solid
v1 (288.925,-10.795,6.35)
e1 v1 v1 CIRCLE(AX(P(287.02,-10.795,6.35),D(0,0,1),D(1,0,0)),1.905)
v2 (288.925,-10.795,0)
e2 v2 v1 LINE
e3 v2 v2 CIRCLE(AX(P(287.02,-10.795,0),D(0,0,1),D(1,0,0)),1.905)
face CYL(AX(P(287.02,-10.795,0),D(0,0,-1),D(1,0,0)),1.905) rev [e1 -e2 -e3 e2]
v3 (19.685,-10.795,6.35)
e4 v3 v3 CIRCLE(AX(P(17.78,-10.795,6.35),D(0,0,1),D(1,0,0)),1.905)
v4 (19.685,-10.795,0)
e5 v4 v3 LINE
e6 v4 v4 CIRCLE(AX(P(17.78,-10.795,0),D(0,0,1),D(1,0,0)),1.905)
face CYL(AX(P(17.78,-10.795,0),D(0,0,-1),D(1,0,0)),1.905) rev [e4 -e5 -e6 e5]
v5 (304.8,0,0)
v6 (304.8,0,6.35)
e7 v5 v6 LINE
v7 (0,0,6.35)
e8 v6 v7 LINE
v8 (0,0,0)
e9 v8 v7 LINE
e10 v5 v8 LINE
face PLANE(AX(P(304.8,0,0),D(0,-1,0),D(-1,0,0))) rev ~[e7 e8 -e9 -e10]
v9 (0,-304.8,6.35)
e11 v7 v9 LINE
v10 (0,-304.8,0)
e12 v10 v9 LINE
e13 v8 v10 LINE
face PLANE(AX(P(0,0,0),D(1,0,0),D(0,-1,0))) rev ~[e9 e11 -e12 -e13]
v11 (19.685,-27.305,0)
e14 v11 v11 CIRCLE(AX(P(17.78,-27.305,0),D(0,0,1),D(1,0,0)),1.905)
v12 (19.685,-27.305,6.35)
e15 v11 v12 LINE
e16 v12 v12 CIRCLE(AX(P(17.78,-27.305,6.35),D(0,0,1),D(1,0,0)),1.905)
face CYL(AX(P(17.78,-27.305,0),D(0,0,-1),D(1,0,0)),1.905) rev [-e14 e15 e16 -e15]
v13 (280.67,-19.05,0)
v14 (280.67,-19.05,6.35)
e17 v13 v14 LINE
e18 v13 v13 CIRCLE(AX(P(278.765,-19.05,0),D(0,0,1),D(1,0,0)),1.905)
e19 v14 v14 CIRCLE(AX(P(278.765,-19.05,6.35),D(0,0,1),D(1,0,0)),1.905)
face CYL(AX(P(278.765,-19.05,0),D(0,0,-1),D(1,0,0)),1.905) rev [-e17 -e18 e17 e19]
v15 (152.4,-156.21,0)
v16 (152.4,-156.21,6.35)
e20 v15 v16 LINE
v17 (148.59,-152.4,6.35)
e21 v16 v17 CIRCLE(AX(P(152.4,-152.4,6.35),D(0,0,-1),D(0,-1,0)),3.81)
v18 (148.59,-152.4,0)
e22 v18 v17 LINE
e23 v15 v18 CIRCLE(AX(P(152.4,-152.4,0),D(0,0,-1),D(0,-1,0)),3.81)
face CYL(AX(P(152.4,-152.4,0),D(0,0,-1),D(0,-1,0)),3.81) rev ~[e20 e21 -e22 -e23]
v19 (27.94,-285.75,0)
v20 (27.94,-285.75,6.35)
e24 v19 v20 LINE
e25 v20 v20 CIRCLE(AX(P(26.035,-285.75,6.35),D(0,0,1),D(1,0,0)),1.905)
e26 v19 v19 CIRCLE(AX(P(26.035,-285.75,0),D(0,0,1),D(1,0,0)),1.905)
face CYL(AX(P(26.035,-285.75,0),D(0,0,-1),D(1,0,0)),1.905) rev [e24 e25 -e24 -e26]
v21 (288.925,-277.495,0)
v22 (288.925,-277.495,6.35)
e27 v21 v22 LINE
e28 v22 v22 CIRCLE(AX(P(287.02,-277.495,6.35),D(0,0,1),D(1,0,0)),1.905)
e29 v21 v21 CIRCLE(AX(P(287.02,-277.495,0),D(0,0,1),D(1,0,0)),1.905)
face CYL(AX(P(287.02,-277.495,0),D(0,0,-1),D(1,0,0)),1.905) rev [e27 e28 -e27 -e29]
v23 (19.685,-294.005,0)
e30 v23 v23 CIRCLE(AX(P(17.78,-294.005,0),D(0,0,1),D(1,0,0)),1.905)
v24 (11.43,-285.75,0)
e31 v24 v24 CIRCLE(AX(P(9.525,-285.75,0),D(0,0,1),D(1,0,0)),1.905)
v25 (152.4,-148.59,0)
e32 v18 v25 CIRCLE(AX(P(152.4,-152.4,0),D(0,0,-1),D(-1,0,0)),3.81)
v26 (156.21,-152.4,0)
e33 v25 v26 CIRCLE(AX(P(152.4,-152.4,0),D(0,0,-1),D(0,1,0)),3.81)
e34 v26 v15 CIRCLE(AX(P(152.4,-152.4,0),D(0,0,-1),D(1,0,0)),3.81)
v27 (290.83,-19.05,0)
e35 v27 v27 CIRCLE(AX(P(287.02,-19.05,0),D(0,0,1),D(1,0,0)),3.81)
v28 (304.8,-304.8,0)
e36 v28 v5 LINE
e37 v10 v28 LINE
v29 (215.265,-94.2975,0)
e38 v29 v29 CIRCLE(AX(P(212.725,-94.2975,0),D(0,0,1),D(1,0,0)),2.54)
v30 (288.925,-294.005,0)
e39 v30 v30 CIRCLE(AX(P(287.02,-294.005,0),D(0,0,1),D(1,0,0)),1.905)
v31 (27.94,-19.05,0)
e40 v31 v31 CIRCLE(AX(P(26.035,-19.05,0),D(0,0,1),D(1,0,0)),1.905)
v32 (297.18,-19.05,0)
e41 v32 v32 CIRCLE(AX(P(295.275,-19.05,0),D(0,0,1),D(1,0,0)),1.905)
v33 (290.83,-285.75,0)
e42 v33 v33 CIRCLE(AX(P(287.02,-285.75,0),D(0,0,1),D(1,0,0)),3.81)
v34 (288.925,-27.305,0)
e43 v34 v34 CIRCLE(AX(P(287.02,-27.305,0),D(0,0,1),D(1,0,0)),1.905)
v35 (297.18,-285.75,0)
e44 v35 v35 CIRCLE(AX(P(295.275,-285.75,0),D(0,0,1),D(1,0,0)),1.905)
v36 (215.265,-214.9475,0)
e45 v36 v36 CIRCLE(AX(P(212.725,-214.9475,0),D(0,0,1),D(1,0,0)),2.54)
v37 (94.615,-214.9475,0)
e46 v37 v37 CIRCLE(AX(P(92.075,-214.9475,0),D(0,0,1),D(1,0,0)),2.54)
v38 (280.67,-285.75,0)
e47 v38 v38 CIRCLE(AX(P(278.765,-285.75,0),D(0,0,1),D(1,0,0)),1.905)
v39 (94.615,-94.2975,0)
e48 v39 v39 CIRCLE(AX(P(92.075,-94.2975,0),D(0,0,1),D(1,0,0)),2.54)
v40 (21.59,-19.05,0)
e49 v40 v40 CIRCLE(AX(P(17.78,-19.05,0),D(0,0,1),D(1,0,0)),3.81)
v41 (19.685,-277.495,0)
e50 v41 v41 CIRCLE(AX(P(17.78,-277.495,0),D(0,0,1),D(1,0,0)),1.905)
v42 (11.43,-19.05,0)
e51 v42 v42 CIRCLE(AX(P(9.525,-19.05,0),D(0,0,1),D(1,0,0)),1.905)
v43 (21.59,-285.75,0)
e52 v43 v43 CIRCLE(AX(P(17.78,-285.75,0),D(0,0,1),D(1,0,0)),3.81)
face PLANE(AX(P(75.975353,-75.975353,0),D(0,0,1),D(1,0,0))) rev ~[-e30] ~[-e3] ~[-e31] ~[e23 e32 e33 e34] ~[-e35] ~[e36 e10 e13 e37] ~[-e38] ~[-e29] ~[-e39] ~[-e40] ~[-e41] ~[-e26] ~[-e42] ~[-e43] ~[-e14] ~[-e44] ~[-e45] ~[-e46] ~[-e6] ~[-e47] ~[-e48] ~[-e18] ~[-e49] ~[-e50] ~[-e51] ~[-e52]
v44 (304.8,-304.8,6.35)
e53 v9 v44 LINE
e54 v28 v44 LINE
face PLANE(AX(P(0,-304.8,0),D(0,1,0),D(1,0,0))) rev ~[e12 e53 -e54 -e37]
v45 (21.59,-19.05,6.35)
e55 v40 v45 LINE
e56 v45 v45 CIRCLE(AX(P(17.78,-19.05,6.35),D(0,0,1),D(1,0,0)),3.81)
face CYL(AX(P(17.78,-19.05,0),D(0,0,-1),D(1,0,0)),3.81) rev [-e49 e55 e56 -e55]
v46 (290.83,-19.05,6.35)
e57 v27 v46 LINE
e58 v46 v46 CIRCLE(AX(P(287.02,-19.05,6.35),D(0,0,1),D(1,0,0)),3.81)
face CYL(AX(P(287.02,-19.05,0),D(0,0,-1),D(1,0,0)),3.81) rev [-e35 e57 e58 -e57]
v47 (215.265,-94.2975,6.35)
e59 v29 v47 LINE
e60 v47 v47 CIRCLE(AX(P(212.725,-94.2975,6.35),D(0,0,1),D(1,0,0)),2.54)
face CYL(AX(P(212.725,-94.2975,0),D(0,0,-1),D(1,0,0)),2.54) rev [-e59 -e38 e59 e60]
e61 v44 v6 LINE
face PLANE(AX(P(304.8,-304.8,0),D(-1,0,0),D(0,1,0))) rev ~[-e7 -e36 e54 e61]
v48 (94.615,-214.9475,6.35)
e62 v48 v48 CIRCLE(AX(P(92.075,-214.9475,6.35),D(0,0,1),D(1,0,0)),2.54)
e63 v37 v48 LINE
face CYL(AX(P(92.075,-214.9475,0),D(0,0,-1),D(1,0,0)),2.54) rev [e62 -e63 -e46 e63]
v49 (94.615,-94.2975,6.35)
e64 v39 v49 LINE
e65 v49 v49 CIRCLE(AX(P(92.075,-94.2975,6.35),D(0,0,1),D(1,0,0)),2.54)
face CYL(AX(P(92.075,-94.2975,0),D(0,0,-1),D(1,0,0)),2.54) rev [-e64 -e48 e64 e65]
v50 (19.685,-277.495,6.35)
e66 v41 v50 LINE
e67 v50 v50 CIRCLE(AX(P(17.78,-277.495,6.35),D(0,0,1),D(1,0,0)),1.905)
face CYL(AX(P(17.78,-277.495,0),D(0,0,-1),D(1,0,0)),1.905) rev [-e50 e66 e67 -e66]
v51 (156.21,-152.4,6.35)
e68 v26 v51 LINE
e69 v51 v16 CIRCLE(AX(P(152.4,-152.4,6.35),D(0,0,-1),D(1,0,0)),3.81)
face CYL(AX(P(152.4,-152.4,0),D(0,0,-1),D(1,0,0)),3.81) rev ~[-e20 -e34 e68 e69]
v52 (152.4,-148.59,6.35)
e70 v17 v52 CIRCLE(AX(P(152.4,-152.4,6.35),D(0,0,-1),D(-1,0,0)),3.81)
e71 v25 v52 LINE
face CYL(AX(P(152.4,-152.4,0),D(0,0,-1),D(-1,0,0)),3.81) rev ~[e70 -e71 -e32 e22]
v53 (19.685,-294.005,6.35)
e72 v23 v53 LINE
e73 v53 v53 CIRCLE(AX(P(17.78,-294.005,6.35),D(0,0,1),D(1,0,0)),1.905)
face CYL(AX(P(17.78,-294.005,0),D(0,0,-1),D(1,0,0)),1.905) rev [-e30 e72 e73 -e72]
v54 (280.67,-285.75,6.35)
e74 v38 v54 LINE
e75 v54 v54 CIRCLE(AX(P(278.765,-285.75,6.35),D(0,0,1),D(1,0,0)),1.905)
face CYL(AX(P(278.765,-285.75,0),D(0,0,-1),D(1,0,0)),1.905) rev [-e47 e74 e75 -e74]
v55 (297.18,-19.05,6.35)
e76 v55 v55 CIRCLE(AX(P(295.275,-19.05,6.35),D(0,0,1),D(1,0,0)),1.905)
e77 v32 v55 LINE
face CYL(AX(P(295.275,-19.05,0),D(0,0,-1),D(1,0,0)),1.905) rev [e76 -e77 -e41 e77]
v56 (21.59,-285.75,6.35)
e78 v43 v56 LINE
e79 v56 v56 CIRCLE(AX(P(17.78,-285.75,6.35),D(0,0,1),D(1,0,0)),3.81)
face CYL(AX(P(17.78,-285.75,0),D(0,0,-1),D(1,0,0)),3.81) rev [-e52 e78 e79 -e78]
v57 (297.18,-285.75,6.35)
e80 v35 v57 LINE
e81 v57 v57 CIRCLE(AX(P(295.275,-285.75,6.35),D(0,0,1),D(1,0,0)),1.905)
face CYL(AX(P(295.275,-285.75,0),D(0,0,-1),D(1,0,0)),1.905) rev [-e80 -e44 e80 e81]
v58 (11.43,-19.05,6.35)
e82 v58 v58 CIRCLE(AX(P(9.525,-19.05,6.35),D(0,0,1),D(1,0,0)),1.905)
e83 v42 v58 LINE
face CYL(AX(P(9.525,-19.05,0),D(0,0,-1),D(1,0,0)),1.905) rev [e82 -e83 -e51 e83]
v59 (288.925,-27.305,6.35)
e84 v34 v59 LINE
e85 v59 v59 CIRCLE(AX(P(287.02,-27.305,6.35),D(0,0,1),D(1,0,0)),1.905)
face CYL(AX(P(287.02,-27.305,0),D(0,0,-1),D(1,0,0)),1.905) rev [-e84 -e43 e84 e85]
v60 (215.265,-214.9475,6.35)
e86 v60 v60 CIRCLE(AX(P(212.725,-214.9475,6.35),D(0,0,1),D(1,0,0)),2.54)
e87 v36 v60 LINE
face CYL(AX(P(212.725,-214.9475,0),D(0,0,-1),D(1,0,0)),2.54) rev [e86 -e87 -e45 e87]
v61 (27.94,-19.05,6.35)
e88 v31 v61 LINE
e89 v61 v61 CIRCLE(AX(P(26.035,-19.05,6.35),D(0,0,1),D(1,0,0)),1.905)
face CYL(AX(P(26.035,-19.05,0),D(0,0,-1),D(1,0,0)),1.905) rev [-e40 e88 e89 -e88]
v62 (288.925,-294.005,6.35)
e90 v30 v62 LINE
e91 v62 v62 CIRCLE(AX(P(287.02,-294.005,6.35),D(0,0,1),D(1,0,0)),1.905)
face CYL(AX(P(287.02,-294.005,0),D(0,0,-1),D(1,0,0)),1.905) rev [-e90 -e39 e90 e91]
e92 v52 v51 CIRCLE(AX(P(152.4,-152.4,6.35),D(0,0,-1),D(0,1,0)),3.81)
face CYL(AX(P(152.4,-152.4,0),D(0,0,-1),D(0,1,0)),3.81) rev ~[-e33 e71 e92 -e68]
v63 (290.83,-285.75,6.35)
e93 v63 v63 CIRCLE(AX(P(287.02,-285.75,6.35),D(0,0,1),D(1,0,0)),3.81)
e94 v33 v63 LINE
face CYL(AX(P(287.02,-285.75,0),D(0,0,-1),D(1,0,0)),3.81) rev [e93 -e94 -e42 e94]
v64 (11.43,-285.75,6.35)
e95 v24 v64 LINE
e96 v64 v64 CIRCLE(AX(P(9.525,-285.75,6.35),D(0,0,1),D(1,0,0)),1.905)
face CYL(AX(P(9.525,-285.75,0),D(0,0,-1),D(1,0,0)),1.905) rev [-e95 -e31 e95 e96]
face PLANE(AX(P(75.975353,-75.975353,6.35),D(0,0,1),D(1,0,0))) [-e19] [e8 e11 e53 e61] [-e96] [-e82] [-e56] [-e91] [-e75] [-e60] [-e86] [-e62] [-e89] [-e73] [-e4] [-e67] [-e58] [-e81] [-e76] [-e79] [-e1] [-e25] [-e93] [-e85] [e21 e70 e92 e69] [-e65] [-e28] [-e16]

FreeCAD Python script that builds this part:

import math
import FreeCAD as App
import Part
import Sketcher

V = App.Vector
Q = App.Units.Quantity


def add_polygon(sketch, points):
    """Adds a closed chain of lines whose ends are joined by coincident constraints."""
    first, n = sketch.GeometryCount, len(points)
    for a, b in zip(points, points[1:] + points[:1]):
        sketch.addGeometry(Part.LineSegment(App.Vector(*a, 0), App.Vector(*b, 0)), False)
    for i in range(n):
        sketch.addConstraint(Sketcher.Constraint("Coincident", first + i, 2, first + (i + 1) % n, 1))

doc = App.newDocument("Part")
body = doc.addObject("PartDesign::Body", "Body")

# Sketch on XY plane
sketch1 = body.newObject("Sketcher::SketchObject", "Sketch")
sketch1.AttachmentSupport = (doc.getObject("XY_Plane"), [""])
sketch1.MapMode = "FlatFace"
add_polygon(sketch1, [(0, 0), (0, -304.8), (304.8, -304.8), (304.8, 0)])  # lines 0-3
sketch1.addGeometry(Part.Circle(V(17.78, -294.005, 0), V(0, 0, 1), 1.905), False)  # 4
sketch1.addGeometry(Part.Circle(V(9.525, -285.75, 0), V(0, 0, 1), 1.905), False)  # 5
sketch1.addGeometry(Part.Circle(V(17.78, -285.75, 0), V(0, 0, 1), 3.81), False)  # 6
sketch1.addGeometry(Part.Circle(V(26.035, -285.75, 0), V(0, 0, 1), 1.905), False)  # 7
sketch1.addGeometry(Part.Circle(V(17.78, -277.495, 0), V(0, 0, 1), 1.905), False)  # 8
sketch1.addGeometry(Part.Circle(V(92.075, -214.9475, 0), V(0, 0, 1), 2.54), False)  # 9
sketch1.addGeometry(Part.Circle(V(278.765, -285.75, 0), V(0, 0, 1), 1.905), False)  # 10
sketch1.addGeometry(Part.Circle(V(287.02, -294.005, 0), V(0, 0, 1), 1.905), False)  # 11
sketch1.addGeometry(Part.Circle(V(287.02, -285.75, 0), V(0, 0, 1), 3.81), False)  # 12
sketch1.addGeometry(Part.Circle(V(295.275, -285.75, 0), V(0, 0, 1), 1.905), False)  # 13
sketch1.addGeometry(Part.Circle(V(287.02, -277.495, 0), V(0, 0, 1), 1.905), False)  # 14
sketch1.addGeometry(Part.Circle(V(212.725, -214.9475, 0), V(0, 0, 1), 2.54), False)  # 15
sketch1.addGeometry(Part.Circle(V(92.075, -94.2975, 0), V(0, 0, 1), 2.54), False)  # 16
sketch1.addGeometry(Part.Circle(V(17.78, -27.305, 0), V(0, 0, 1), 1.905), False)  # 17
sketch1.addGeometry(Part.Circle(V(9.525, -19.05, 0), V(0, 0, 1), 1.905), False)  # 18
sketch1.addGeometry(Part.Circle(V(17.78, -19.05, 0), V(0, 0, 1), 3.81), False)  # 19
sketch1.addGeometry(Part.Circle(V(17.78, -10.795, 0), V(0, 0, 1), 1.905), False)  # 20
sketch1.addGeometry(Part.Circle(V(26.035, -19.05, 0), V(0, 0, 1), 1.905), False)  # 21
sketch1.addGeometry(Part.ArcOfCircle(Part.Circle(V(152.4, -152.4, 0), V(0, 0, 1), 3.81), math.radians(180), math.radians(270)), False)  # 22
sketch1.addGeometry(Part.ArcOfCircle(Part.Circle(V(152.4, -152.4, 0), V(0, 0, 1), 3.81), math.radians(90), math.radians(180)), False)  # 23
sketch1.addGeometry(Part.ArcOfCircle(Part.Circle(V(152.4, -152.4, 0), V(0, 0, 1), 3.81), math.radians(0), math.radians(90)), False)  # 24
sketch1.addGeometry(Part.ArcOfCircle(Part.Circle(V(152.4, -152.4, 0), V(0, 0, 1), 3.81), math.radians(-90), math.radians(0)), False)  # 25
sketch1.addGeometry(Part.Circle(V(212.725, -94.2975, 0), V(0, 0, 1), 2.54), False)  # 26
sketch1.addGeometry(Part.Circle(V(287.02, -27.305, 0), V(0, 0, 1), 1.905), False)  # 27
sketch1.addGeometry(Part.Circle(V(278.765, -19.05, 0), V(0, 0, 1), 1.905), False)  # 28
sketch1.addGeometry(Part.Circle(V(287.02, -19.05, 0), V(0, 0, 1), 3.81), False)  # 29
sketch1.addGeometry(Part.Circle(V(295.275, -19.05, 0), V(0, 0, 1), 1.905), False)  # 30
sketch1.addGeometry(Part.Circle(V(287.02, -10.795, 0), V(0, 0, 1), 1.905), False)  # 31
sketch1.addConstraint([
    Sketcher.Constraint("Tangent", 22, 1, 23, 2),
    Sketcher.Constraint("Tangent", 23, 1, 24, 2),
    Sketcher.Constraint("Tangent", 24, 1, 25, 2),
    Sketcher.Constraint("Tangent", 25, 1, 22, 2),
    Sketcher.Constraint("Vertical", 0),
    Sketcher.Constraint("Horizontal", 1),
    Sketcher.Constraint("Vertical", 2),
    Sketcher.Constraint("Horizontal", 3),
    Sketcher.Constraint("Coincident", 3, 2, -1, 1),
    Sketcher.Constraint("Equal", 4, 5),
    Sketcher.Constraint("Equal", 5, 7),
    Sketcher.Constraint("Equal", 7, 8),
    Sketcher.Constraint("Equal", 8, 10),
    Sketcher.Constraint("Equal", 10, 11),
    Sketcher.Constraint("Equal", 6, 12),
    Sketcher.Constraint("Equal", 11, 13),
    Sketcher.Constraint("Equal", 13, 14),
    Sketcher.Constraint("Equal", 9, 15),
    Sketcher.Constraint("Equal", 15, 16),
    Sketcher.Constraint("Equal", 14, 17),
    Sketcher.Constraint("Equal", 17, 18),
    Sketcher.Constraint("Equal", 12, 19),
    Sketcher.Constraint("Equal", 18, 20),
    Sketcher.Constraint("Equal", 20, 21),
    Sketcher.Constraint("Equal", 19, 22),
    Sketcher.Constraint("Equal", 22, 23),
    Sketcher.Constraint("Equal", 16, 26),
    Sketcher.Constraint("Equal", 21, 27),
    Sketcher.Constraint("Equal", 27, 28),
    Sketcher.Constraint("Equal", 25, 29),
    Sketcher.Constraint("Equal", 28, 30),
    Sketcher.Constraint("Equal", 30, 31),
    Sketcher.Constraint("Horizontal", 5, 3, 6, 3),
    Sketcher.Constraint("Horizontal", 6, 3, 7, 3),
    Sketcher.Constraint("Horizontal", 7, 3, 10, 3),
    Sketcher.Constraint("Horizontal", 4, 3, 11, 3),
    Sketcher.Constraint("Horizontal", 10, 3, 12, 3),
    Sketcher.Constraint("Horizontal", 12, 3, 13, 3),
    Sketcher.Constraint("Horizontal", 8, 3, 14, 3),
    Sketcher.Constraint("Horizontal", 9, 3, 15, 3),
    Sketcher.Constraint("Horizontal", 18, 3, 19, 3),
    Sketcher.Constraint("Horizontal", 19, 3, 21, 3),
    Sketcher.Constraint("Horizontal", 16, 3, 26, 3),
    Sketcher.Constraint("Horizontal", 17, 3, 27, 3),
    Sketcher.Constraint("Horizontal", 21, 3, 28, 3),
    Sketcher.Constraint("Horizontal", 28, 3, 29, 3),
    Sketcher.Constraint("Horizontal", 29, 3, 30, 3),
    Sketcher.Constraint("Horizontal", 20, 3, 31, 3),
    Sketcher.Constraint("Horizontal", 25, 3, 22, 1),
    Sketcher.Constraint("Horizontal", 22, 1, 24, 1),
    Sketcher.Constraint("Vertical", 4, 3, 6, 3),
    Sketcher.Constraint("Vertical", 6, 3, 8, 3),
    Sketcher.Constraint("Vertical", 11, 3, 12, 3),
    Sketcher.Constraint("Vertical", 12, 3, 14, 3),
    Sketcher.Constraint("Vertical", 9, 3, 16, 3),
    Sketcher.Constraint("Vertical", 8, 3, 17, 3),
    Sketcher.Constraint("Vertical", 5, 3, 18, 3),
    Sketcher.Constraint("Vertical", 17, 3, 19, 3),
    Sketcher.Constraint("Vertical", 19, 3, 20, 3),
    Sketcher.Constraint("Vertical", 7, 3, 21, 3),
    Sketcher.Constraint("Vertical", 15, 3, 26, 3),
    Sketcher.Constraint("Vertical", 14, 3, 27, 3),
    Sketcher.Constraint("Vertical", 10, 3, 28, 3),
    Sketcher.Constraint("Vertical", 27, 3, 29, 3),
    Sketcher.Constraint("Vertical", 13, 3, 30, 3),
    Sketcher.Constraint("Vertical", 29, 3, 31, 3),
    Sketcher.Constraint("Vertical", 25, 3, 23, 1),
    Sketcher.Constraint("Vertical", 23, 1, 25, 1),
    Sketcher.Constraint("Equal", 3, 0),
    Sketcher.Constraint("Diameter", 6, Q("0.3 in")),
    Sketcher.Constraint("Diameter", 9, Q("0.2 in")),
    Sketcher.Constraint("Diameter", 4, Q("0.15 in")),
    Sketcher.Constraint("DistanceX", 1, 1, 1, 2, Q("12 in")),
    Sketcher.Constraint("DistanceX", -1, 1, 22, 3, Q("6 in")),
    Sketcher.Constraint("DistanceY", 22, 3, -1, 1, Q("6 in")),
    Sketcher.Constraint("DistanceX", 9, 3, 13, 3, Q("8 in")),
    Sketcher.Constraint("DistanceX", -1, 1, 4, 3, Q("0.7 in")),
    Sketcher.Constraint("DistanceX", -1, 1, 11, 3, Q("11.3 in")),
    Sketcher.Constraint("DistanceX", 7, 3, 9, 3, Q("2.6 in")),
    Sketcher.Constraint("DistanceX", 15, 3, 10, 3, Q("2.6 in")),
    Sketcher.Constraint("DistanceY", 5, 3, 18, 3, Q("10.5 in")),
    Sketcher.Constraint("DistanceY", 5, 3, -1, 1, Q("11.25 in")),
    Sketcher.Constraint("DistanceX", 5, 3, 7, 3, Q("0.65 in")),
    Sketcher.Constraint("DistanceY", 4, 3, 8, 3, Q("0.65 in")),
    Sketcher.Constraint("DistanceX", 9, 3, 10, 3, Q("7.35 in")),
    Sketcher.Constraint("DistanceY", 9, 3, 16, 3, Q("4.75 in")),
    Sketcher.Constraint("DistanceY", 8, 3, 17, 3, Q("9.85 in")),
    Sketcher.Constraint("DistanceY", 17, 3, 20, 3, Q("0.65 in")),
    Sketcher.Constraint("DistanceY", 4, 3, -1, 1, Q("11.575 in")),
    Sketcher.Constraint("DistanceX", -1, 1, 5, 3, Q("0.375 in")),
    Sketcher.Constraint("DistanceY", 9, 3, -1, 1, Q("8.4625 in")),
])
pad1 = body.newObject("PartDesign::Pad", "Pad")
pad1.Profile = sketch1
pad1.Length = Q("0.25 in")

doc.recompute()
